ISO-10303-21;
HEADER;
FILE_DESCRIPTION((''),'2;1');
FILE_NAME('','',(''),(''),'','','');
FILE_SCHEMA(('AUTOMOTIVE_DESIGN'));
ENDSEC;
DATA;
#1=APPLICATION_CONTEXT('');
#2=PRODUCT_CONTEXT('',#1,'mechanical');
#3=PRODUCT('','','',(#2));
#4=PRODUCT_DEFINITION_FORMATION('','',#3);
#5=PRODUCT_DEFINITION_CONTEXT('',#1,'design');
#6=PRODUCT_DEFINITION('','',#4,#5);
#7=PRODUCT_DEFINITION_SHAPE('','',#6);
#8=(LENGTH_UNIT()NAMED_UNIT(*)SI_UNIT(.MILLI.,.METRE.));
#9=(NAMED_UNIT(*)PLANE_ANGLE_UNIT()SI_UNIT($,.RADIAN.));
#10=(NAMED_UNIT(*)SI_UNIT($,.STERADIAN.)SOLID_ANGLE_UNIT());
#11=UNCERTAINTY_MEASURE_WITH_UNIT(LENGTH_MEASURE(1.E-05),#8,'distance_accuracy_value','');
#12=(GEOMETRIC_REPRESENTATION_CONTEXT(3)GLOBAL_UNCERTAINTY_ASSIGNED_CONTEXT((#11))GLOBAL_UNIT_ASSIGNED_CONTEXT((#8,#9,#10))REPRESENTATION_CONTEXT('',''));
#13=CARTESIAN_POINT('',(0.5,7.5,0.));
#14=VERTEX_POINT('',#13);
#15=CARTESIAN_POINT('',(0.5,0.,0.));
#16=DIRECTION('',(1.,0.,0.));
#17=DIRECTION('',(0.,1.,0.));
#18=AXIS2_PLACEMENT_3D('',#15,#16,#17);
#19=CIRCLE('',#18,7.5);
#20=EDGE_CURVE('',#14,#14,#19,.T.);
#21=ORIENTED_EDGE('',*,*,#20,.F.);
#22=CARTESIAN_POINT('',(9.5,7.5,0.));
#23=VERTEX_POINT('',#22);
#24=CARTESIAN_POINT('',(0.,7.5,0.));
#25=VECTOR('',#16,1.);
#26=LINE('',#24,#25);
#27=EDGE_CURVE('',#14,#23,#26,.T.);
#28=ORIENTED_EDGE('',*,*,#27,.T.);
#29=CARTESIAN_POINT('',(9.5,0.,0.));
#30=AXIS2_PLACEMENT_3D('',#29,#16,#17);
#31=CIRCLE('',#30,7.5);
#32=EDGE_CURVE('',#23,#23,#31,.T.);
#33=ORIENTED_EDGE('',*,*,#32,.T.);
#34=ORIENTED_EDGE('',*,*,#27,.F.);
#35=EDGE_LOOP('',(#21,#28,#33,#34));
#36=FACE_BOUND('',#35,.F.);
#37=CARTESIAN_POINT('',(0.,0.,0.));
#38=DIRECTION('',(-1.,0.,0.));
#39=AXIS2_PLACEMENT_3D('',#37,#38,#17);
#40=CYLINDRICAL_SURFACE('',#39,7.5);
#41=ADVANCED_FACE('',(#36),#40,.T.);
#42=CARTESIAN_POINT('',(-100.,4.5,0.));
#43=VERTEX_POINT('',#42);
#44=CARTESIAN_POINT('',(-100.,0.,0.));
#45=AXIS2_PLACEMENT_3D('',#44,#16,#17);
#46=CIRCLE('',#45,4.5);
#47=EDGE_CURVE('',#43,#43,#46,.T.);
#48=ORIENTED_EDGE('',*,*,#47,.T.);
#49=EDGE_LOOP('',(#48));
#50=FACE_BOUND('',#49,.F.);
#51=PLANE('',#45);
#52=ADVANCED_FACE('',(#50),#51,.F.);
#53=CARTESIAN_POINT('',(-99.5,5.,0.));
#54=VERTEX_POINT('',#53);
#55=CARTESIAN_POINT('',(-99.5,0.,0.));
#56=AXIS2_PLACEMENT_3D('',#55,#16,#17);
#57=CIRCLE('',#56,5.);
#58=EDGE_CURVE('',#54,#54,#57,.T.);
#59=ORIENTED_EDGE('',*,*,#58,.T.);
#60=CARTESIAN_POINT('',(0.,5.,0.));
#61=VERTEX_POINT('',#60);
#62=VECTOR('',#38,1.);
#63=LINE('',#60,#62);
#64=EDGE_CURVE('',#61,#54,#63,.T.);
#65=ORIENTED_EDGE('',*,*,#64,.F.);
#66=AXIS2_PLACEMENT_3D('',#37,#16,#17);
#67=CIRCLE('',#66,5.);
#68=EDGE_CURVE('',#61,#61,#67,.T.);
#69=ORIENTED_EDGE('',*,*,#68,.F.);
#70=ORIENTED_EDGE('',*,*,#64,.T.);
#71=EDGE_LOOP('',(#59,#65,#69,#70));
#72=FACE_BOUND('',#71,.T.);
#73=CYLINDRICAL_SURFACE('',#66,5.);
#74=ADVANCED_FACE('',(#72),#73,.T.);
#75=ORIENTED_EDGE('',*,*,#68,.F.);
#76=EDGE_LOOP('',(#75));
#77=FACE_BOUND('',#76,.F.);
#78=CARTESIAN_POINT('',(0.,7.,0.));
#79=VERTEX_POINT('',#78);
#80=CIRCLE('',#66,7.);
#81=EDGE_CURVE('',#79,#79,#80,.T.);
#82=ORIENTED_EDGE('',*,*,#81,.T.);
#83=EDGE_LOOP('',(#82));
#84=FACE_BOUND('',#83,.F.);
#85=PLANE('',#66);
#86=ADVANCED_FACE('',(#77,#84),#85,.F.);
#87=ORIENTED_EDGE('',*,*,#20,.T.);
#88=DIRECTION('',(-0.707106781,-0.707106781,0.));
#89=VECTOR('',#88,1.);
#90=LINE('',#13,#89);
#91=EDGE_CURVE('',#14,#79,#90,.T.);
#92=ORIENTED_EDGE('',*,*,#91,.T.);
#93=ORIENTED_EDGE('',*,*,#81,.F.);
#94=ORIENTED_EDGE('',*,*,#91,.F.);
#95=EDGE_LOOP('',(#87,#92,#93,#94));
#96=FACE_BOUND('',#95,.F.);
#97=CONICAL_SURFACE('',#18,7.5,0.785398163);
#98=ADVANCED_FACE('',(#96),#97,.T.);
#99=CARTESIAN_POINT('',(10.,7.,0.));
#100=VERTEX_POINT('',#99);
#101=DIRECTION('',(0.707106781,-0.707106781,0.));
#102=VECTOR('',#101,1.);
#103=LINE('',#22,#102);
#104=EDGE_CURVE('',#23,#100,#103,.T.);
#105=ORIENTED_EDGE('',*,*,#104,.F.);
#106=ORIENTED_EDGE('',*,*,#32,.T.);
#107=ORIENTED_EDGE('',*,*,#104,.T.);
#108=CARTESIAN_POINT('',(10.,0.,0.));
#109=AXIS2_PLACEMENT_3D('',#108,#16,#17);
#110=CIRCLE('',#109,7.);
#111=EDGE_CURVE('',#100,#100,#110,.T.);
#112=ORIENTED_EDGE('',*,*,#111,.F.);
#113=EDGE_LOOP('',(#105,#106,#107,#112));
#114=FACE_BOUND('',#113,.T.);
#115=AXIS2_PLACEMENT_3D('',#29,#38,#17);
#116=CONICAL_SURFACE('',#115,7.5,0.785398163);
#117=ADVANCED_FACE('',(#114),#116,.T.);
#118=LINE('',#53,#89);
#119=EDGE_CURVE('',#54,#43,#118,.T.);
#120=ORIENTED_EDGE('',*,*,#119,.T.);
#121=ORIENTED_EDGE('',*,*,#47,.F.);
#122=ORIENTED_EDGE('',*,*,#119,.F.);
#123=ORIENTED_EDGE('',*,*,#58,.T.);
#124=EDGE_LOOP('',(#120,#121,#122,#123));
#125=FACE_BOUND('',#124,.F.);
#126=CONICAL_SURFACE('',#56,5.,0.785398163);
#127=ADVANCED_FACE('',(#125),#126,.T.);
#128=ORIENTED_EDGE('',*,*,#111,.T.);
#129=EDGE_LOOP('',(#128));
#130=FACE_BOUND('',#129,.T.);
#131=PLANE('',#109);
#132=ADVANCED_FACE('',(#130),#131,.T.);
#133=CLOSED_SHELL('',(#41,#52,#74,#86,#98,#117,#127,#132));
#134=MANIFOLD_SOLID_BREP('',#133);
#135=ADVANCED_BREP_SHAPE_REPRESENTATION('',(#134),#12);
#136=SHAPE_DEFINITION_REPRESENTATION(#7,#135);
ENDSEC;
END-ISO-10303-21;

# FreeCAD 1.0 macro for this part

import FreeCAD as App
import Part
import Sketcher


def edges_at(feature, points):
    """Names of the edges that pass closest to the given points."""
    edges = feature.Shape.Edges
    near = lambda p: min(range(len(edges)), key=lambda i: edges[i].distToShape(Part.Vertex(*p))[0])
    return sorted({f"Edge{near(p) + 1}" for p in points})

doc = App.newDocument("Part")
params = doc.addObject("Spreadsheet::Sheet", "Params")
for row, (alias, value) in enumerate([
    ("sketch1_diameter", "10 mm"),
    ("pad1_length", "100 mm"),
    ("sketch2_diameter", "15 mm"),
    ("pad2_length", "10 mm"),
    ("chamfer_size", "0.5 mm"),
], start=1):
    params.set(f"A{row}", alias)
    params.set(f"B{row}", "=" + value)
    params.setAlias(f"B{row}", alias)

body = doc.addObject("PartDesign::Body", "Body")

sketch1 = body.newObject("Sketcher::SketchObject", "Sketch")
sketch1.AttachmentSupport = (doc.getObject("YZ_Plane"), [""])
sketch1.MapMode = "FlatFace"
sketch1.addGeometry(Part.Circle(App.Vector(0, 0, 0), App.Vector(0, 0, 1), 5), False)
sketch1.addConstraint([
    Sketcher.Constraint("Coincident", 0, 3, -1, 1),
    Sketcher.Constraint("Diameter", 0, 10.0),
])
sketch1.setExpression("Constraints[1]", "Params.sketch1_diameter")
pad1 = body.newObject("PartDesign::Pad", "Pad")
pad1.Profile = sketch1
pad1.setExpression("Length", "Params.pad1_length")
pad1.Reversed = True

sketch2 = body.newObject("Sketcher::SketchObject", "Sketch001")
sketch2.AttachmentSupport = (doc.getObject("YZ_Plane"), [""])
sketch2.MapMode = "FlatFace"
sketch2.addGeometry(Part.Circle(App.Vector(0, 0, 0), App.Vector(0, 0, 1), 8), False)
sketch2.addConstraint([
    Sketcher.Constraint("Coincident", 0, 3, -1, 1),
    Sketcher.Constraint("Diameter", 0, 15.0),
])
sketch2.setExpression("Constraints[1]", "Params.sketch2_diameter")
pad2 = body.newObject("PartDesign::Pad", "Pad001")
pad2.Profile = sketch2
pad2.setExpression("Length", "Params.pad2_length")
doc.recompute()

chamfer = body.newObject("PartDesign::Chamfer", "Chamfer")
chamfer.Base = (pad2, edges_at(pad2, [(10, -7.5, 0), (-100, -5, 0), (0, -7.5, 0)]))
chamfer.setExpression("Size", "Params.chamfer_size")

doc.recompute()
